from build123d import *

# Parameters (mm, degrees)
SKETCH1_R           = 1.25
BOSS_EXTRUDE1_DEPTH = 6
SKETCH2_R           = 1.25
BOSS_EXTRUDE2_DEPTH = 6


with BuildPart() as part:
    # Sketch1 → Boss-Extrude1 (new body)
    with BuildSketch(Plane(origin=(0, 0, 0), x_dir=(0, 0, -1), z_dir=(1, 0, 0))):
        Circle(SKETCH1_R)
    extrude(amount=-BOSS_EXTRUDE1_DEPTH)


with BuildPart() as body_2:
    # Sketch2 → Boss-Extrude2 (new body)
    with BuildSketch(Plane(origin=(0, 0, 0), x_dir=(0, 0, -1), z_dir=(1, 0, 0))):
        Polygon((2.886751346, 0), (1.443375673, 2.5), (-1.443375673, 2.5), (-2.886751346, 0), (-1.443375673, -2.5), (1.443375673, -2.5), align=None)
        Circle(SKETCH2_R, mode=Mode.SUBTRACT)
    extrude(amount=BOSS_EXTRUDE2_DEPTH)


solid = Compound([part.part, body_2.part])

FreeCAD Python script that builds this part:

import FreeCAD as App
import Part
import Sketcher
from FreeCAD import Vector
Q = App.Units.Quantity

doc = App.newDocument("Part")
body = doc.addObject("PartDesign::Body", "Body")

# Sketch on YZ plane
sketch1 = doc.addObject("Sketcher::SketchObject", "Sketch")
body.addObject(sketch1)
sketch1.AttachmentSupport = (doc.YZ_Plane, [""])
sketch1.MapMode = "FlatFace"
sketch1.addGeometry(Part.Circle(Vector(0, 0, 0), Vector(0, 0, 1), 1.2), False)
sketch1.addConstraint([
    Sketcher.Constraint("Coincident", 0, 3, -1, 1),
    Sketcher.Constraint("Diameter", 0, Q("2.5 mm")),
])
pad1 = doc.addObject("PartDesign::Pad", "Pad")
body.addObject(pad1)
pad1.Profile = sketch1
pad1.Length = 6
pad1.Reversed = True
body2 = doc.addObject("PartDesign::Body", "Body001")

# Sketch on YZ plane
sketch2 = doc.addObject("Sketcher::SketchObject", "Sketch001")
body2.addObject(sketch2)
sketch2.AttachmentSupport = (doc.getObject("YZ_Plane001"), [""])
sketch2.MapMode = "FlatFace"
sketch2.addGeometry([
    Part.LineSegment(Vector(0, -2.9, 0), Vector(2.5, -1.4, 0)),  # 0
    Part.LineSegment(Vector(2.5, -1.4, 0), Vector(2.5, 1.4, 0)),  # 1
    Part.LineSegment(Vector(2.5, 1.4, 0), Vector(0, 2.9, 0)),  # 2
    Part.LineSegment(Vector(0, 2.9, 0), Vector(-2.5, 1.4, 0)),  # 3
    Part.LineSegment(Vector(-2.5, 1.4, 0), Vector(-2.5, -1.4, 0)),  # 4
    Part.LineSegment(Vector(-2.5, -1.4, 0), Vector(0, -2.9, 0)),  # 5
    Part.Circle(Vector(0, 0, 0), Vector(0, 0, 1), 1.2),  # 6
], False)
sketch2.addConstraint([
    Sketcher.Constraint("Coincident", 0, 2, 1, 1),
    Sketcher.Constraint("Coincident", 1, 2, 2, 1),
    Sketcher.Constraint("Coincident", 2, 2, 3, 1),
    Sketcher.Constraint("Coincident", 3, 2, 4, 1),
    Sketcher.Constraint("Coincident", 4, 2, 5, 1),
    Sketcher.Constraint("Coincident", 5, 2, 0, 1),
    Sketcher.Constraint("Vertical", 1),
    Sketcher.Constraint("Vertical", 4),
    Sketcher.Constraint("Coincident", 6, 3, -1, 1),
    Sketcher.Constraint("Symmetric", 0, 2, 3, 2, -1, 1),
    Sketcher.Constraint("Symmetric", 2, 2, 5, 2, -1, 1),
    Sketcher.Constraint("PointOnObject", 2, 2, -2),
    Sketcher.Constraint("Parallel", 2, 5),
    Sketcher.Constraint("Horizontal", 1, 2, 3, 2),
    Sketcher.Constraint("Diameter", 6, Q("2.5 mm")),
    Sketcher.Constraint("Angle", 0, Q("30 deg")),
    Sketcher.Constraint("DistanceX", 3, 2, 1, 2, Q("5 mm")),
    Sketcher.Constraint("DistanceY", 1, 1, 1, 2, Q("2.886751 mm")),
])
pad2 = doc.addObject("PartDesign::Pad", "Pad001")
body2.addObject(pad2)
pad2.Profile = sketch2
pad2.Length = 6

doc.recompute()
